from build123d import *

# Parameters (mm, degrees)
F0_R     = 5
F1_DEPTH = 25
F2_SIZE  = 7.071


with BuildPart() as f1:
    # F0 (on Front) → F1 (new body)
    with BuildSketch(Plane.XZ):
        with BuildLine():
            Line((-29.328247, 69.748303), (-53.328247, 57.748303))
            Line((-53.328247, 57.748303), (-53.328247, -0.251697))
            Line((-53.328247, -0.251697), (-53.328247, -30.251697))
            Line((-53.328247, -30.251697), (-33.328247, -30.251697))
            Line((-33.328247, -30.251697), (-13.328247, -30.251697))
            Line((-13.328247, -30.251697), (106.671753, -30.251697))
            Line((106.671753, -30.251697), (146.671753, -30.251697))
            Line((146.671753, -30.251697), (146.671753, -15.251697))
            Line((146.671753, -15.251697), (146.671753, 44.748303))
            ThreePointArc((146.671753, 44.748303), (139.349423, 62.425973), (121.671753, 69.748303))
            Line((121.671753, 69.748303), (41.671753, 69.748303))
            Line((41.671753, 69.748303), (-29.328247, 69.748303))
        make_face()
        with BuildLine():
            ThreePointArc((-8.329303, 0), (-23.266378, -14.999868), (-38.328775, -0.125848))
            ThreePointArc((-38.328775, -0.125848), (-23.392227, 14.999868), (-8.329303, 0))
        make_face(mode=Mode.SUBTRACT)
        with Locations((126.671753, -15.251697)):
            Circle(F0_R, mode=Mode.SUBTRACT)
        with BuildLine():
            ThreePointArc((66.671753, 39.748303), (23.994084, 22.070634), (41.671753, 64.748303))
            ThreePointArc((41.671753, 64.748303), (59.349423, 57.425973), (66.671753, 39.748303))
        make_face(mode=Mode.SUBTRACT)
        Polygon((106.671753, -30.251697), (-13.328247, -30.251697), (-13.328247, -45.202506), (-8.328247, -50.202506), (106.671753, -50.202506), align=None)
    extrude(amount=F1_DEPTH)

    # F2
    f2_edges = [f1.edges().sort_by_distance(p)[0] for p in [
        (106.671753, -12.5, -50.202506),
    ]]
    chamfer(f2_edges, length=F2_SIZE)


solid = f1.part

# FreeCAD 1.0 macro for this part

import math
import FreeCAD as App
import Part
import Sketcher
from FreeCAD import Vector
Q = App.Units.Quantity


def edges_at(feature, points):
    """Names of the edges that pass closest to the given points."""
    edges = feature.Shape.Edges
    near = lambda p: min(range(len(edges)), key=lambda i: edges[i].distToShape(Part.Vertex(*p))[0])
    return sorted({f"Edge{near(p) + 1}" for p in points})

doc = App.newDocument("Part")
body = doc.addObject("PartDesign::Body", "Body")

# Sketch on XZ plane
sketch1 = body.newObject("Sketcher::SketchObject", "Sketch")
sketch1.AttachmentSupport = (doc.getObject("XZ_Plane"), [""])
sketch1.MapMode = "FlatFace"
sketch1.addGeometry(Part.LineSegment(Vector(-29, 70, 0), Vector(-53, 58, 0)), False)
sketch1.addGeometry(Part.LineSegment(Vector(-53, 58, 0), Vector(-53, -30, 0)), False)
sketch1.addGeometry(Part.LineSegment(Vector(-53, -30, 0), Vector(-13, -30, 0)), False)
sketch1.addGeometry(Part.LineSegment(Vector(-13, -30, 0), Vector(-13, -45, 0)), False)
sketch1.addGeometry(Part.LineSegment(Vector(-13, -45, 0), Vector(-8, -50, 0)), False)
sketch1.addGeometry(Part.LineSegment(Vector(-8, -50, 0), Vector(107, -50, 0)), False)
sketch1.addGeometry(Part.LineSegment(Vector(107, -50, 0), Vector(107, -30, 0)), False)
sketch1.addGeometry(Part.LineSegment(Vector(107, -30, 0), Vector(147, -30, 0)), False)
sketch1.addGeometry(Part.LineSegment(Vector(147, -30, 0), Vector(147, 45, 0)), False)
sketch1.addGeometry(Part.ArcOfCircle(Part.Circle(Vector(122, 45, 0), Vector(0, 0, 1), 25), math.radians(0), math.radians(90)), False)
sketch1.addGeometry(Part.LineSegment(Vector(122, 70, 0), Vector(-29, 70, 0)), False)
sketch1.addGeometry(Part.ArcOfCircle(Part.Circle(Vector(-23, 0, 0), Vector(0, 0, 1), 15), math.radians(0), math.radians(180)), False)
sketch1.addGeometry(Part.ArcOfCircle(Part.Circle(Vector(-23, 0, 0), Vector(0, 0, 1), 15), math.radians(-180), math.radians(0)), False)
sketch1.addGeometry(Part.Circle(Vector(127, -15, 0), Vector(0, 0, 1), 5), False)
sketch1.addGeometry(Part.ArcOfCircle(Part.Circle(Vector(42, 40, 0), Vector(0, 0, 1), 25), math.radians(0), math.radians(90)), False)
sketch1.addGeometry(Part.ArcOfCircle(Part.Circle(Vector(42, 40, 0), Vector(0, 0, 1), 25), math.radians(90), math.radians(360)), False)
sketch1.addConstraint(Sketcher.Constraint("Coincident", 0, 2, 1, 1))
sketch1.addConstraint(Sketcher.Constraint("Coincident", 1, 2, 2, 1))
sketch1.addConstraint(Sketcher.Constraint("Coincident", 2, 2, 3, 1))
sketch1.addConstraint(Sketcher.Constraint("Coincident", 3, 2, 4, 1))
sketch1.addConstraint(Sketcher.Constraint("Coincident", 4, 2, 5, 1))
sketch1.addConstraint(Sketcher.Constraint("Coincident", 5, 2, 6, 1))
sketch1.addConstraint(Sketcher.Constraint("Coincident", 6, 2, 7, 1))
sketch1.addConstraint(Sketcher.Constraint("Coincident", 7, 2, 8, 1))
sketch1.addConstraint(Sketcher.Constraint("Tangent", 8, 2, 9, 1))
sketch1.addConstraint(Sketcher.Constraint("Tangent", 9, 2, 10, 1))
sketch1.addConstraint(Sketcher.Constraint("Coincident", 10, 2, 0, 1))
sketch1.addConstraint(Sketcher.Constraint("Tangent", 11, 1, 12, 2))
sketch1.addConstraint(Sketcher.Constraint("Coincident", 12, 1, 11, 2))
sketch1.addConstraint(Sketcher.Constraint("Tangent", 14, 1, 15, 2))
sketch1.addConstraint(Sketcher.Constraint("Coincident", 15, 1, 14, 2))
sketch1.addConstraint(Sketcher.Constraint("Vertical", 1))
sketch1.addConstraint(Sketcher.Constraint("Horizontal", 2))
sketch1.addConstraint(Sketcher.Constraint("Vertical", 3))
sketch1.addConstraint(Sketcher.Constraint("Horizontal", 5))
sketch1.addConstraint(Sketcher.Constraint("Vertical", 6))
sketch1.addConstraint(Sketcher.Constraint("Horizontal", 7))
sketch1.addConstraint(Sketcher.Constraint("Vertical", 8))
sketch1.addConstraint(Sketcher.Constraint("Horizontal", 10))
sketch1.addConstraint(Sketcher.Constraint("Equal", 9, 14))
sketch1.addConstraint(Sketcher.Constraint("PointOnObject", 11, 3, -1))
sketch1.addConstraint(Sketcher.Constraint("PointOnObject", 11, 1, -1))
sketch1.addConstraint(Sketcher.Constraint("Horizontal", 2, 2, 6, 2))
sketch1.addConstraint(Sketcher.Constraint("Horizontal", 15, 3, 14, 1))
sketch1.addConstraint(Sketcher.Constraint("Vertical", 14, 3, 15, 1))
sketch1.addConstraint(Sketcher.Constraint("Equal", 2, 7))
sketch1.addConstraint(Sketcher.Constraint("Diameter", 13, 10.0))
sketch1.addConstraint(Sketcher.Constraint("Radius", 9, 24.999998))
sketch1.addConstraint(Sketcher.Constraint("Radius", 11, 15.0))
sketch1.addConstraint(Sketcher.Constraint("DistanceX", 2, 1, 2, 2, 40.0))
sketch1.addConstraint(Sketcher.Constraint("DistanceX", 5, 1, 5, 2, 115.0))
sketch1.addConstraint(Sketcher.Constraint("DistanceX", 10, 2, 10, 1, 151.0))
sketch1.addConstraint(Sketcher.Constraint("DistanceY", 1, 2, 1, 1, 88.0))
sketch1.addConstraint(Sketcher.Constraint("DistanceY", 8, 1, 8, 2, 75.0))
sketch1.addConstraint(Sketcher.Constraint("Angle", 4, Q("-45 deg")))
sketch1.addConstraint(Sketcher.Constraint("DistanceX", 9, 3, 13, 3, 4.999998))
sketch1.addConstraint(Sketcher.Constraint("DistanceY", 13, 3, 9, 3, 60.000002))
sketch1.addConstraint(Sketcher.Constraint("DistanceX", 14, 3, 9, 3, 80.0))
sketch1.addConstraint(Sketcher.Constraint("DistanceY", 14, 3, 9, 3, 5.0))
sketch1.addConstraint(Sketcher.Constraint("DistanceX", 0, 2, 15, 3, 95.0))
sketch1.addConstraint(Sketcher.Constraint("DistanceY", 3, 2, 3, 1, 14.950809))
sketch1.addConstraint(Sketcher.Constraint("DistanceY", 12, 1, -1, 1, 0.125848))
sketch1.addConstraint(Sketcher.Constraint("DistanceX", 1, 2, 12, 1, 14.999472))
sketch1.addConstraint(Sketcher.Constraint("DistanceY", 1, 2, 12, 1, 30.125849))
sketch1.addConstraint(Sketcher.Constraint("DistanceX", -1, 1, 9, 3, 121.671755))
pad1 = body.newObject("PartDesign::Pad", "Pad")
pad1.Profile = sketch1
pad1.Length = 25
doc.recompute()

chamfer = body.newObject("PartDesign::Chamfer", "Chamfer")
chamfer.Base = (pad1, edges_at(pad1, [(106.672, -12.5, -50.203)]))
chamfer.Size = 7.071

doc.recompute()
